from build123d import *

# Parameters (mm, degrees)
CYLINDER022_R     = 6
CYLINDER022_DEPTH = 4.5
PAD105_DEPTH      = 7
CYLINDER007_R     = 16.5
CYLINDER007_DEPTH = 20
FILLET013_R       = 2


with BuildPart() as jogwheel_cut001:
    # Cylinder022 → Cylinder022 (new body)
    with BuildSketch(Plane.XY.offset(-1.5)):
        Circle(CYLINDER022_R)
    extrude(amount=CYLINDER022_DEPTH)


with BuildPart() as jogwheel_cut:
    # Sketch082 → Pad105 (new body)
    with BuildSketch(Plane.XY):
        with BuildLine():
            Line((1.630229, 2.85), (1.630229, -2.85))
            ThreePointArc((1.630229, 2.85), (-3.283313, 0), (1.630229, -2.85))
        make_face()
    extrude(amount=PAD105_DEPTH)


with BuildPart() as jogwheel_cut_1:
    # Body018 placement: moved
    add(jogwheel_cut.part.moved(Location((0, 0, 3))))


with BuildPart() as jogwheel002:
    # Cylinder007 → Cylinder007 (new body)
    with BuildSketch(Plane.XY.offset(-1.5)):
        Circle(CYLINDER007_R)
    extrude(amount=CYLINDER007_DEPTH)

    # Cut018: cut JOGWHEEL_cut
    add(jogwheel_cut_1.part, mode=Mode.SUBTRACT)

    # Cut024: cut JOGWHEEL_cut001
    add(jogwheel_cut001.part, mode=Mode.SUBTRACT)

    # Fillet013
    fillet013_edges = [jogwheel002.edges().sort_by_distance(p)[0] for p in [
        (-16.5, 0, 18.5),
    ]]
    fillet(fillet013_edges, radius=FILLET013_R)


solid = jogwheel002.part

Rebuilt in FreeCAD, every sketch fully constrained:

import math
import FreeCAD as App
import Part
import Sketcher

V = App.Vector


def edges_at(feature, points):
    """Names of the edges that pass closest to the given points."""
    edges = feature.Shape.Edges
    near = lambda p: min(range(len(edges)), key=lambda i: edges[i].distToShape(Part.Vertex(*p))[0])
    return sorted({f"Edge{near(p) + 1}" for p in points})

doc = App.newDocument("Part")
body = doc.addObject("PartDesign::Body", "Body")

sketch1 = doc.addObject("Sketcher::SketchObject", "Sketch")
body.addObject(sketch1)
sketch1.AttachmentSupport = (doc.XY_Plane, [""])
sketch1.MapMode = "FlatFace"
sketch1.AttachmentOffset = App.Placement(V(0, 0, -1.5), App.Rotation())
sketch1.addGeometry(Part.Circle(V(0, 0, 0), V(0, 0, 1), 6), False)
sketch1.addConstraint(Sketcher.Constraint("Coincident", 0, 3, -1, 1))
sketch1.addConstraint(Sketcher.Constraint("Diameter", 0, 12.0))
pad1 = doc.addObject("PartDesign::Pad", "Pad")
body.addObject(pad1)
pad1.Profile = sketch1
pad1.Length = 4.5
body2 = doc.addObject("PartDesign::Body", "Body001")

sketch2 = doc.addObject("Sketcher::SketchObject", "Sketch001")
body2.addObject(sketch2)
sketch2.AttachmentSupport = (doc.getObject("XY_Plane001"), [""])
sketch2.MapMode = "FlatFace"
sketch2.addGeometry(Part.LineSegment(V(1.630229, -2.85, 0), V(1.630229, 2.85, 0)), False)
sketch2.addGeometry(Part.ArcOfCircle(Part.Circle(V(0, 0, 0), V(0, 0, 1), 3.283313), math.radians(60.230008), math.radians(299.769992)), False)
sketch2.addConstraint(Sketcher.Constraint("Coincident", 0, 1, 1, 2))
sketch2.addConstraint(Sketcher.Constraint("Coincident", 1, 1, 0, 2))
sketch2.addConstraint(Sketcher.Constraint("Vertical", 0))
sketch2.addConstraint(Sketcher.Constraint("Coincident", 1, 3, -1, 1))
sketch2.addConstraint(Sketcher.Constraint("DistanceY", 0, 1, 0, 2, 5.7))
sketch2.addConstraint(Sketcher.Constraint("Radius", 1, 3.283313))
pad2 = doc.addObject("PartDesign::Pad", "Pad001")
body2.addObject(pad2)
pad2.Profile = sketch2
pad2.Length = 7
body3 = doc.addObject("PartDesign::Body", "Body002")
doc.recompute()

body2.Placement = App.Placement(V(0, 0, 3), App.Rotation(V(0, 0, 1), 0))
boolean = doc.addObject("PartDesign::Boolean", "Boolean")
body3.addObject(boolean)
boolean.Type = "Fuse"
boolean.addObjects([body2])
body4 = doc.addObject("PartDesign::Body", "Body003")

sketch3 = doc.addObject("Sketcher::SketchObject", "Sketch002")
body4.addObject(sketch3)
sketch3.AttachmentSupport = (doc.getObject("XY_Plane003"), [""])
sketch3.MapMode = "FlatFace"
sketch3.AttachmentOffset = App.Placement(V(0, 0, -1.5), App.Rotation())
sketch3.addGeometry(Part.Circle(V(0, 0, 0), V(0, 0, 1), 16.5), False)
sketch3.addConstraint(Sketcher.Constraint("Coincident", 0, 3, -1, 1))
sketch3.addConstraint(Sketcher.Constraint("Diameter", 0, 33.0))
pad3 = doc.addObject("PartDesign::Pad", "Pad002")
body4.addObject(pad3)
pad3.Profile = sketch3
pad3.Length = 20
doc.recompute()

boolean2 = doc.addObject("PartDesign::Boolean", "Boolean001")
body4.addObject(boolean2)
boolean2.Type = "Cut"
boolean2.addObjects([body3])
doc.recompute()

boolean3 = doc.addObject("PartDesign::Boolean", "Boolean002")
body4.addObject(boolean3)
boolean3.Type = "Cut"
boolean3.addObjects([body])
doc.recompute()

fillet = doc.addObject("PartDesign::Fillet", "Fillet")
body4.addObject(fillet)
fillet.Base = (boolean3, edges_at(boolean3, [(-16.5, 0, 18.5)]))
fillet.Radius = 2

doc.recompute()
